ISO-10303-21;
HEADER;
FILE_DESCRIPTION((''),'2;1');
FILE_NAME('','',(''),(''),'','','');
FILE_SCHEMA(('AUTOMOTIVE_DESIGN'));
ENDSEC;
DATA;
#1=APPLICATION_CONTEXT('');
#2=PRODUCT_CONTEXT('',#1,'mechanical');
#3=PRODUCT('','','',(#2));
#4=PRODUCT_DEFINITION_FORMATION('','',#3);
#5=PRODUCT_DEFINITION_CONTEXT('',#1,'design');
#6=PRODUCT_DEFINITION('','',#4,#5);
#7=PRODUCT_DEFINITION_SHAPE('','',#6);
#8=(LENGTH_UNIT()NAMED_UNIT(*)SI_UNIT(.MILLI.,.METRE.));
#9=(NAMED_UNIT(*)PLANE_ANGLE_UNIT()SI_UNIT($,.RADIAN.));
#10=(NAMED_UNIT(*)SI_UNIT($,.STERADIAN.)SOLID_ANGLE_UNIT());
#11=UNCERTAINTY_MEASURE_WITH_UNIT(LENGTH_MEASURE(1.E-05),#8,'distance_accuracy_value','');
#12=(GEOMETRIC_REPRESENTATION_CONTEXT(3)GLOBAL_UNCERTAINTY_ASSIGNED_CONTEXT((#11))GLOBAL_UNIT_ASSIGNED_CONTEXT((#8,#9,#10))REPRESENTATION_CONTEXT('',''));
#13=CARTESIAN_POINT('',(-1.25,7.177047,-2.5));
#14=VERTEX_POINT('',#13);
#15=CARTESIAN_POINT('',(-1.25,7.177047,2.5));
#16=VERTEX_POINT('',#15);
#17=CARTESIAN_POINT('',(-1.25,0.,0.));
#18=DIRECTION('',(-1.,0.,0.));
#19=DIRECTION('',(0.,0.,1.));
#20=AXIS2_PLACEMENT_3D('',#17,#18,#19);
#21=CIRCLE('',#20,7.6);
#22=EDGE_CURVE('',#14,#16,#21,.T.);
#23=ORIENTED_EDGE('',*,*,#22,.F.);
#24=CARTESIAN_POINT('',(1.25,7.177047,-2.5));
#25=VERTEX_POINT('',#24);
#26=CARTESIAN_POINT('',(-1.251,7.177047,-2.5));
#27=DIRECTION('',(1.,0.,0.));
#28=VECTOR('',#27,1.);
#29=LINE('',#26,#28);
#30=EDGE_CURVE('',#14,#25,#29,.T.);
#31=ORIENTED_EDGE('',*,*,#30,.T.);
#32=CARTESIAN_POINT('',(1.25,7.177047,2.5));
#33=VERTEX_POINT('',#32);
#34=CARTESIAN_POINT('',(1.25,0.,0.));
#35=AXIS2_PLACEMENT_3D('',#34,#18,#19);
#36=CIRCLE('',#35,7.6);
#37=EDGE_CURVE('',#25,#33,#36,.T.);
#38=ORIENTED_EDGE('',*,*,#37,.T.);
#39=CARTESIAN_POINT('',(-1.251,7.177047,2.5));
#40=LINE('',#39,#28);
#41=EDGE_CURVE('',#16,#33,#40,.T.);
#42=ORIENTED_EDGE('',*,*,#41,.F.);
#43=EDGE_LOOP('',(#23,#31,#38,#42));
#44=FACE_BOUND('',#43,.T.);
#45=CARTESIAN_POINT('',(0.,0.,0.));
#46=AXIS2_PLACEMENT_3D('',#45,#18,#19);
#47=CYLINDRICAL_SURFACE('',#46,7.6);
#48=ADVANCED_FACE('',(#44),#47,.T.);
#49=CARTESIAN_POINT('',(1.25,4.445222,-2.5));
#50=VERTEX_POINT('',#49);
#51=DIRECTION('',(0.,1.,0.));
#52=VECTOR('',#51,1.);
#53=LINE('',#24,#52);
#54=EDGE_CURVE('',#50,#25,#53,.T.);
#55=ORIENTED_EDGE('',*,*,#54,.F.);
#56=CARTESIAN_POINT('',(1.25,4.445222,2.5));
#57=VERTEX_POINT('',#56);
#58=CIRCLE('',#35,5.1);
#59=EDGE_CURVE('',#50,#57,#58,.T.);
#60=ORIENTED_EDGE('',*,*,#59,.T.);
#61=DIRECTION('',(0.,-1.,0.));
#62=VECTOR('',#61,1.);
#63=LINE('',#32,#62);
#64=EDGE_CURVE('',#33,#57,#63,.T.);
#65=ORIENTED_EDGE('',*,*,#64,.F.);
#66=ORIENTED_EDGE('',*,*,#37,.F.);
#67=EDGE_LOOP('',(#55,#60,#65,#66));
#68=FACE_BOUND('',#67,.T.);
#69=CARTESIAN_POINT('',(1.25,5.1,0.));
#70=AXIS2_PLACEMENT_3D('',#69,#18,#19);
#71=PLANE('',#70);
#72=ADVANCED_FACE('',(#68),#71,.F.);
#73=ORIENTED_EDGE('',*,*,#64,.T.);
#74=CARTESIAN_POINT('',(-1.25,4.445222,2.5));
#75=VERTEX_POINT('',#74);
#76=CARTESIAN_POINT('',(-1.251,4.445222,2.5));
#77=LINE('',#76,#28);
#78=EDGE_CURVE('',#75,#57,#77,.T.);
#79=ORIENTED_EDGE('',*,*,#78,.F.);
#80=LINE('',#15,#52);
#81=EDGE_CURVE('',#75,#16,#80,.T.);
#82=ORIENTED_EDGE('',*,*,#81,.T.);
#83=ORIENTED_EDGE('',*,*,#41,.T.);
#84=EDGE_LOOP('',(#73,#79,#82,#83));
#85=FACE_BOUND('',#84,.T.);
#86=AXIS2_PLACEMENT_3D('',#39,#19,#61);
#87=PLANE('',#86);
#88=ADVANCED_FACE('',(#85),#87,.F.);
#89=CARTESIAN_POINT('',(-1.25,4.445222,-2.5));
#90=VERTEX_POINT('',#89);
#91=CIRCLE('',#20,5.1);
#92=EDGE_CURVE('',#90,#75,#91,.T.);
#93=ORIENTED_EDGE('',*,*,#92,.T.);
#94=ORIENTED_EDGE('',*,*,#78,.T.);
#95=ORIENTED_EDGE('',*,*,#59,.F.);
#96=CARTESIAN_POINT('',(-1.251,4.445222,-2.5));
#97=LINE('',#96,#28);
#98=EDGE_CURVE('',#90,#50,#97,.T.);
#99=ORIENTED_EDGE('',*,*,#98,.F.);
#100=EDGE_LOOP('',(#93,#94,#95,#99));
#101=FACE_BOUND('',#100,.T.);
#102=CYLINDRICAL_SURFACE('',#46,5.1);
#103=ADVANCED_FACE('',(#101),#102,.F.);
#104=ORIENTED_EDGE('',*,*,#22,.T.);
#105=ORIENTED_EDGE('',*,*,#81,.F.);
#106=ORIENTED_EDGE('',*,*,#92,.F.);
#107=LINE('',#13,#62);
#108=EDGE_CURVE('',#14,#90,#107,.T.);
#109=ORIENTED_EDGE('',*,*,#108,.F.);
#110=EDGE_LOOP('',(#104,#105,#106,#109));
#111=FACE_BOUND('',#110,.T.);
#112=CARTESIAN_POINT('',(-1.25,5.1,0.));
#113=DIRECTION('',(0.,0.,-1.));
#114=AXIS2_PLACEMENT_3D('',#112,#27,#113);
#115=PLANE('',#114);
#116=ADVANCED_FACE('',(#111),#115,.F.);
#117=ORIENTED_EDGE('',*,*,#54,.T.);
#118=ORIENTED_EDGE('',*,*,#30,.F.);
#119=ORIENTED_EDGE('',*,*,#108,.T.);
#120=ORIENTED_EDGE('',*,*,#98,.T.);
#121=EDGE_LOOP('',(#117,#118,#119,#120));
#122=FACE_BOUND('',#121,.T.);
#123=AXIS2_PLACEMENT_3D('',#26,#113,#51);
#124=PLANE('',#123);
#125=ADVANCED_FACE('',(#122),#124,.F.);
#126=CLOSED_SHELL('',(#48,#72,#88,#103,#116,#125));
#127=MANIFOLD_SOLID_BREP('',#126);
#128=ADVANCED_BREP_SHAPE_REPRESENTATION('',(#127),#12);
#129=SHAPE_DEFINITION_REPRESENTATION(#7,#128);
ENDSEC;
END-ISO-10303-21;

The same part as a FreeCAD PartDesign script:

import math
import FreeCAD as App
import Part
import Sketcher
Q = App.Units.Quantity

doc = App.newDocument("Part")
params = doc.addObject("Spreadsheet::Sheet", "Params")
for row, (alias, value) in enumerate([
    ("sketch1_width", "2.5 mm"),
    ("revolution_angle", "360 deg"),
    ("sketch2_radius", "5.1 mm"),
    ("sketch2_radius2", "7.6 mm"),
], start=1):
    params.set(f"A{row}", alias)
    params.set(f"B{row}", "=" + value)
    params.setAlias(f"B{row}", alias)

body = doc.addObject("PartDesign::Body", "Body")

# Sketch on XY plane
sketch1 = body.newObject("Sketcher::SketchObject", "Sketch")
sketch1.AttachmentSupport = (doc.getObject("XY_Plane"), [""])
sketch1.MapMode = "FlatFace"
sketch1.addGeometry(Part.LineSegment(App.Vector(-1.2, 7.6, 0), App.Vector(-1.2, 5.1, 0)), False)
sketch1.addGeometry(Part.LineSegment(App.Vector(-1.2, 5.1, 0), App.Vector(1.2, 5.1, 0)), False)
sketch1.addGeometry(Part.LineSegment(App.Vector(1.2, 5.1, 0), App.Vector(1.2, 7.6, 0)), False)
sketch1.addGeometry(Part.LineSegment(App.Vector(1.2, 7.6, 0), App.Vector(-1.2, 7.6, 0)), False)
sketch1.addConstraint(Sketcher.Constraint("Coincident", 0, 2, 1, 1))
sketch1.addConstraint(Sketcher.Constraint("Coincident", 1, 2, 2, 1))
sketch1.addConstraint(Sketcher.Constraint("Coincident", 2, 2, 3, 1))
sketch1.addConstraint(Sketcher.Constraint("Coincident", 3, 2, 0, 1))
sketch1.addConstraint(Sketcher.Constraint("Vertical", 0))
sketch1.addConstraint(Sketcher.Constraint("Horizontal", 1))
sketch1.addConstraint(Sketcher.Constraint("Vertical", 2))
sketch1.addConstraint(Sketcher.Constraint("Horizontal", 3))
sketch1.addConstraint(Sketcher.Constraint("Equal", 3, 0))
sketch1.addConstraint(Sketcher.Constraint("DistanceX", 1, 1, 1, 2, Q("2.5 mm")))
sketch1.addConstraint(Sketcher.Constraint("DistanceY", -1, 1, 0, 2, Q("5.1 mm")))
sketch1.addConstraint(Sketcher.Constraint("DistanceX", 0, 2, -1, 1, Q("1.25 mm")))
sketch1.setExpression("Constraints[9]", "Params.sketch1_width")
revolution = body.newObject("PartDesign::Revolution", "Revolution")
revolution.Profile = sketch1
revolution.ReferenceAxis = (sketch1, ["H_Axis"])
revolution.setExpression("Angle", "Params.revolution_angle")

# Sketch on YZ plane
sketch2 = body.newObject("Sketcher::SketchObject", "Sketch001")
sketch2.AttachmentSupport = (doc.getObject("YZ_Plane"), [""])
sketch2.MapMode = "FlatFace"
sketch2.AttachmentOffset = App.Placement(App.Vector(0, 0, 1.25), App.Rotation())
sketch2.addGeometry(Part.LineSegment(App.Vector(7.2, 2.5, 0), App.Vector(4.4, 2.5, 0)), False)
sketch2.addGeometry(Part.ArcOfCircle(Part.Circle(App.Vector(0, 0, 0), App.Vector(0, 0, 1), 5.1), math.radians(-29), math.radians(29)), False)
sketch2.addGeometry(Part.LineSegment(App.Vector(4.4, -2.5, 0), App.Vector(7.2, -2.5, 0)), False)
sketch2.addGeometry(Part.ArcOfCircle(Part.Circle(App.Vector(0, 0, 0), App.Vector(0, 0, 1), 7.6), math.radians(-19), math.radians(19)), False)
sketch2.addConstraint(Sketcher.Constraint("Coincident", 0, 2, 1, 2))
sketch2.addConstraint(Sketcher.Constraint("Coincident", 1, 1, 2, 1))
sketch2.addConstraint(Sketcher.Constraint("Coincident", 2, 2, 3, 1))
sketch2.addConstraint(Sketcher.Constraint("Coincident", 3, 2, 0, 1))
sketch2.addConstraint(Sketcher.Constraint("Horizontal", 0))
sketch2.addConstraint(Sketcher.Constraint("Horizontal", 2))
sketch2.addConstraint(Sketcher.Constraint("Coincident", 1, 3, -1, 1))
sketch2.addConstraint(Sketcher.Constraint("Coincident", 3, 3, -1, 1))
sketch2.addConstraint(Sketcher.Constraint("Vertical", 0, 2, 1, 1))
sketch2.addConstraint(Sketcher.Constraint("Radius", 1, Q("5.1 mm")))
sketch2.addConstraint(Sketcher.Constraint("Radius", 3, Q("7.6 mm")))
sketch2.addConstraint(Sketcher.Constraint("DistanceY", 1, 1, 0, 2, Q("5 mm")))
sketch2.setExpression("Constraints[9]", "Params.sketch2_radius")
sketch2.setExpression("Constraints[10]", "Params.sketch2_radius2")
pocket1 = body.newObject("PartDesign::Pocket", "Pocket")
pocket1.Profile = sketch2
pocket1.Type = "UpToFirst"

doc.recompute()
